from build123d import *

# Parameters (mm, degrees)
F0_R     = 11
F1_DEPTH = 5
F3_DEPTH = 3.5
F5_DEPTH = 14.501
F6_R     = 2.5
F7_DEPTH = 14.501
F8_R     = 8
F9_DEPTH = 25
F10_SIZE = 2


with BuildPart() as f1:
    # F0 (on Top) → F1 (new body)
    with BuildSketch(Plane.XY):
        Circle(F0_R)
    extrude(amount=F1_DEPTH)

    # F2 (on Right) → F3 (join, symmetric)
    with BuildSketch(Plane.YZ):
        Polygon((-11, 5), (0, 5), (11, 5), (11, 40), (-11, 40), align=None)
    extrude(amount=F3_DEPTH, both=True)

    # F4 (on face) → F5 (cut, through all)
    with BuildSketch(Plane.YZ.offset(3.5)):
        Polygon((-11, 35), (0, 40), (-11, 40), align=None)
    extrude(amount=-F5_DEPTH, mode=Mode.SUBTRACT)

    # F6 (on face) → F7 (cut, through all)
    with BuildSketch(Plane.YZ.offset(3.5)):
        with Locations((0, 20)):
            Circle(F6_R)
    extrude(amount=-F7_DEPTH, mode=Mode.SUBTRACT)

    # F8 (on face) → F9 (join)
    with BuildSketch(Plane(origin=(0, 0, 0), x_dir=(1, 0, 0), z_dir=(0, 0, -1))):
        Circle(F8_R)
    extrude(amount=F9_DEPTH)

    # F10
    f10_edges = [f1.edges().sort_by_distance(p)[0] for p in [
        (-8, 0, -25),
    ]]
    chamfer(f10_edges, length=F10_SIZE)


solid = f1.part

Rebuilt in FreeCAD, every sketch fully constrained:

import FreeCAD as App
import Part
import Sketcher
from FreeCAD import Vector


def edges_at(feature, points):
    """Names of the edges that pass closest to the given points."""
    edges = feature.Shape.Edges
    near = lambda p: min(range(len(edges)), key=lambda i: edges[i].distToShape(Part.Vertex(*p))[0])
    return sorted({f"Edge{near(p) + 1}" for p in points})

doc = App.newDocument("Part")
body = doc.addObject("PartDesign::Body", "Body")

# Sketch on XY plane
sketch1 = body.newObject("Sketcher::SketchObject", "Sketch")
sketch1.AttachmentSupport = (doc.getObject("XY_Plane"), [""])
sketch1.MapMode = "FlatFace"
sketch1.addGeometry(Part.Circle(Vector(0, 0, 0), Vector(0, 0, 1), 11), False)
sketch1.addConstraint([
    Sketcher.Constraint("Coincident", 0, 3, -1, 1),
    Sketcher.Constraint("Diameter", 0, 22.0),
])
pad1 = body.newObject("PartDesign::Pad", "Pad")
pad1.Profile = sketch1
pad1.Length = 5

# Sketch on YZ plane
sketch2 = body.newObject("Sketcher::SketchObject", "Sketch001")
sketch2.AttachmentSupport = (doc.getObject("YZ_Plane"), [""])
sketch2.MapMode = "FlatFace"
sketch2.addGeometry([
    Part.LineSegment(Vector(-11, 5, 0), Vector(11, 5, 0)),
    Part.LineSegment(Vector(11, 5, 0), Vector(11, 40, 0)),
    Part.LineSegment(Vector(11, 40, 0), Vector(-11, 40, 0)),
    Part.LineSegment(Vector(-11, 40, 0), Vector(-11, 5, 0)),
], False)
sketch2.addConstraint([
    Sketcher.Constraint("Coincident", 0, 2, 1, 1),
    Sketcher.Constraint("Coincident", 1, 2, 2, 1),
    Sketcher.Constraint("Coincident", 2, 2, 3, 1),
    Sketcher.Constraint("Coincident", 3, 2, 0, 1),
    Sketcher.Constraint("Horizontal", 0),
    Sketcher.Constraint("Vertical", 1),
    Sketcher.Constraint("Horizontal", 2),
    Sketcher.Constraint("Vertical", 3),
    Sketcher.Constraint("DistanceX", 0, 1, 0, 2, 22.0),
    Sketcher.Constraint("DistanceY", 1, 1, 1, 2, 35.0),
    Sketcher.Constraint("DistanceX", -1, 1, 0, 2, 11.0),
    Sketcher.Constraint("DistanceY", -1, 1, 0, 2, 5.0),
])
pad2 = body.newObject("PartDesign::Pad", "Pad001")
pad2.Profile = sketch2
pad2.Length = 7
pad2.Midplane = True

# Sketch on YZ plane
sketch3 = body.newObject("Sketcher::SketchObject", "Sketch002")
sketch3.AttachmentSupport = (doc.getObject("YZ_Plane"), [""])
sketch3.MapMode = "FlatFace"
sketch3.AttachmentOffset = App.Placement(Vector(0, 0, 3.5), App.Rotation())
sketch3.addGeometry([
    Part.LineSegment(Vector(-11, 35, 0), Vector(0, 40, 0)),
    Part.LineSegment(Vector(0, 40, 0), Vector(-11, 40, 0)),
    Part.LineSegment(Vector(-11, 40, 0), Vector(-11, 35, 0)),
], False)
sketch3.addConstraint([
    Sketcher.Constraint("Coincident", 0, 2, 1, 1),
    Sketcher.Constraint("Coincident", 1, 2, 2, 1),
    Sketcher.Constraint("Coincident", 2, 2, 0, 1),
    Sketcher.Constraint("Horizontal", 1),
    Sketcher.Constraint("Vertical", 2),
    Sketcher.Constraint("PointOnObject", 0, 2, -2),
    Sketcher.Constraint("DistanceX", 1, 2, 1, 1, 11.0),
    Sketcher.Constraint("DistanceY", 2, 2, 2, 1, 5.0),
    Sketcher.Constraint("DistanceY", -1, 1, 0, 2, 40.0),
])
pocket1 = body.newObject("PartDesign::Pocket", "Pocket")
pocket1.Profile = sketch3
pocket1.Type = "ThroughAll"

# Sketch on YZ plane
sketch4 = body.newObject("Sketcher::SketchObject", "Sketch003")
sketch4.AttachmentSupport = (doc.getObject("YZ_Plane"), [""])
sketch4.MapMode = "FlatFace"
sketch4.AttachmentOffset = App.Placement(Vector(0, 0, 3.5), App.Rotation())
sketch4.addGeometry(Part.Circle(Vector(0, 20, 0), Vector(0, 0, 1), 2.5), False)
sketch4.addConstraint([
    Sketcher.Constraint("PointOnObject", 0, 3, -2),
    Sketcher.Constraint("Diameter", 0, 5.0),
    Sketcher.Constraint("DistanceY", -1, 1, 0, 3, 20.0),
])
pocket2 = body.newObject("PartDesign::Pocket", "Pocket001")
pocket2.Profile = sketch4
pocket2.Type = "ThroughAll"

# Sketch on XY plane
sketch5 = body.newObject("Sketcher::SketchObject", "Sketch004")
sketch5.AttachmentSupport = (doc.getObject("XY_Plane"), [""])
sketch5.MapMode = "FlatFace"
sketch5.addGeometry(Part.Circle(Vector(0, 0, 0), Vector(0, 0, 1), 8), False)
sketch5.addConstraint([
    Sketcher.Constraint("Coincident", 0, 3, -1, 1),
    Sketcher.Constraint("Diameter", 0, 16.0),
])
pad3 = body.newObject("PartDesign::Pad", "Pad002")
pad3.Profile = sketch5
pad3.Length = 25
pad3.Reversed = True
doc.recompute()

chamfer = body.newObject("PartDesign::Chamfer", "Chamfer")
chamfer.Base = (pad3, edges_at(pad3, [(-8, 0, -25)]))
chamfer.Size = 2

doc.recompute()
